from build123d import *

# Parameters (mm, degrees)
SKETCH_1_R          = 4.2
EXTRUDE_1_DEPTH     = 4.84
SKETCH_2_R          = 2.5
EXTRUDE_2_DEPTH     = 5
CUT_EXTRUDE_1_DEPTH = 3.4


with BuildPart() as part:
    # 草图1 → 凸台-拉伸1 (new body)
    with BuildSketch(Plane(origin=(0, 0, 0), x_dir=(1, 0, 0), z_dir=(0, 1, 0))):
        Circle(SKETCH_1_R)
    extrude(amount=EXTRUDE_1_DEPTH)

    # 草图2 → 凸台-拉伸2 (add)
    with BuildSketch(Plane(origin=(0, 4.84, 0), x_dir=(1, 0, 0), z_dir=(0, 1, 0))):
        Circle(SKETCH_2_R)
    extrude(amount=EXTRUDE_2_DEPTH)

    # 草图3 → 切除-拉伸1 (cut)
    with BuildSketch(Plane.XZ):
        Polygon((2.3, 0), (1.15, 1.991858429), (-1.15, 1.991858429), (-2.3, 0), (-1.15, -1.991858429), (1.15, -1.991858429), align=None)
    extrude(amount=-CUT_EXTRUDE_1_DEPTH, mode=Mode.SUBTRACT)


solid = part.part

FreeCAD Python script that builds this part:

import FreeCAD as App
import Part
import Sketcher
Q = App.Units.Quantity


def add_polygon(sketch, points):
    """Adds a closed chain of lines whose ends are joined by coincident constraints."""
    first, n = sketch.GeometryCount, len(points)
    for a, b in zip(points, points[1:] + points[:1]):
        sketch.addGeometry(Part.LineSegment(App.Vector(*a, 0), App.Vector(*b, 0)), False)
    for i in range(n):
        sketch.addConstraint(Sketcher.Constraint("Coincident", first + i, 2, first + (i + 1) % n, 1))

doc = App.newDocument("Part")
body = doc.addObject("PartDesign::Body", "Body")

# Sketch on XZ plane
sketch1 = body.newObject("Sketcher::SketchObject", "Sketch")
sketch1.AttachmentSupport = (doc.getObject("XZ_Plane"), [""])
sketch1.MapMode = "FlatFace"
sketch1.addGeometry(Part.Circle(App.Vector(0, 0, 0), App.Vector(0, 0, 1), 4.2), False)
sketch1.addConstraint(Sketcher.Constraint("Coincident", 0, 3, -1, 1))
sketch1.addConstraint(Sketcher.Constraint("Diameter", 0, 8.4))
pad1 = body.newObject("PartDesign::Pad", "Pad")
pad1.Profile = sketch1
pad1.Length = 4.84
pad1.Reversed = True

# Sketch on XZ plane
sketch2 = body.newObject("Sketcher::SketchObject", "Sketch001")
sketch2.AttachmentSupport = (doc.getObject("XZ_Plane"), [""])
sketch2.MapMode = "FlatFace"
sketch2.AttachmentOffset = App.Placement(App.Vector(0, 0, -4.84), App.Rotation())
sketch2.addGeometry(Part.Circle(App.Vector(0, 0, 0), App.Vector(0, 0, 1), 2.5), False)
sketch2.addConstraint(Sketcher.Constraint("Coincident", 0, 3, -1, 1))
sketch2.addConstraint(Sketcher.Constraint("Diameter", 0, 5.0))
pad2 = body.newObject("PartDesign::Pad", "Pad001")
pad2.Profile = sketch2
pad2.Length = 5
pad2.Reversed = True

# Sketch on XZ plane
sketch3 = body.newObject("Sketcher::SketchObject", "Sketch002")
sketch3.AttachmentSupport = (doc.getObject("XZ_Plane"), [""])
sketch3.MapMode = "FlatFace"
add_polygon(sketch3, [(2.3, 0), (1.1, 2), (-1.1, 2), (-2.3, 0), (-1.1, -2), (1.1, -2)])  # lines 0-5
sketch3.addConstraint(Sketcher.Constraint("Horizontal", 1))
sketch3.addConstraint(Sketcher.Constraint("Horizontal", 4))
sketch3.addConstraint(Sketcher.Constraint("Symmetric", 0, 2, 3, 2, -1, 1))
sketch3.addConstraint(Sketcher.Constraint("Symmetric", 2, 2, 5, 2, -1, 1))
sketch3.addConstraint(Sketcher.Constraint("PointOnObject", 2, 2, -1))
sketch3.addConstraint(Sketcher.Constraint("Parallel", 2, 5))
sketch3.addConstraint(Sketcher.Constraint("Vertical", 1, 2, 3, 2))
sketch3.addConstraint(Sketcher.Constraint("Angle", 0, Q("120 deg")))
sketch3.addConstraint(Sketcher.Constraint("DistanceX", 1, 2, 1, 1, 2.3))
sketch3.addConstraint(Sketcher.Constraint("Distance", 0, 2.3))
pocket1 = body.newObject("PartDesign::Pocket", "Pocket")
pocket1.Profile = sketch3
pocket1.Length = 3.4

doc.recompute()
